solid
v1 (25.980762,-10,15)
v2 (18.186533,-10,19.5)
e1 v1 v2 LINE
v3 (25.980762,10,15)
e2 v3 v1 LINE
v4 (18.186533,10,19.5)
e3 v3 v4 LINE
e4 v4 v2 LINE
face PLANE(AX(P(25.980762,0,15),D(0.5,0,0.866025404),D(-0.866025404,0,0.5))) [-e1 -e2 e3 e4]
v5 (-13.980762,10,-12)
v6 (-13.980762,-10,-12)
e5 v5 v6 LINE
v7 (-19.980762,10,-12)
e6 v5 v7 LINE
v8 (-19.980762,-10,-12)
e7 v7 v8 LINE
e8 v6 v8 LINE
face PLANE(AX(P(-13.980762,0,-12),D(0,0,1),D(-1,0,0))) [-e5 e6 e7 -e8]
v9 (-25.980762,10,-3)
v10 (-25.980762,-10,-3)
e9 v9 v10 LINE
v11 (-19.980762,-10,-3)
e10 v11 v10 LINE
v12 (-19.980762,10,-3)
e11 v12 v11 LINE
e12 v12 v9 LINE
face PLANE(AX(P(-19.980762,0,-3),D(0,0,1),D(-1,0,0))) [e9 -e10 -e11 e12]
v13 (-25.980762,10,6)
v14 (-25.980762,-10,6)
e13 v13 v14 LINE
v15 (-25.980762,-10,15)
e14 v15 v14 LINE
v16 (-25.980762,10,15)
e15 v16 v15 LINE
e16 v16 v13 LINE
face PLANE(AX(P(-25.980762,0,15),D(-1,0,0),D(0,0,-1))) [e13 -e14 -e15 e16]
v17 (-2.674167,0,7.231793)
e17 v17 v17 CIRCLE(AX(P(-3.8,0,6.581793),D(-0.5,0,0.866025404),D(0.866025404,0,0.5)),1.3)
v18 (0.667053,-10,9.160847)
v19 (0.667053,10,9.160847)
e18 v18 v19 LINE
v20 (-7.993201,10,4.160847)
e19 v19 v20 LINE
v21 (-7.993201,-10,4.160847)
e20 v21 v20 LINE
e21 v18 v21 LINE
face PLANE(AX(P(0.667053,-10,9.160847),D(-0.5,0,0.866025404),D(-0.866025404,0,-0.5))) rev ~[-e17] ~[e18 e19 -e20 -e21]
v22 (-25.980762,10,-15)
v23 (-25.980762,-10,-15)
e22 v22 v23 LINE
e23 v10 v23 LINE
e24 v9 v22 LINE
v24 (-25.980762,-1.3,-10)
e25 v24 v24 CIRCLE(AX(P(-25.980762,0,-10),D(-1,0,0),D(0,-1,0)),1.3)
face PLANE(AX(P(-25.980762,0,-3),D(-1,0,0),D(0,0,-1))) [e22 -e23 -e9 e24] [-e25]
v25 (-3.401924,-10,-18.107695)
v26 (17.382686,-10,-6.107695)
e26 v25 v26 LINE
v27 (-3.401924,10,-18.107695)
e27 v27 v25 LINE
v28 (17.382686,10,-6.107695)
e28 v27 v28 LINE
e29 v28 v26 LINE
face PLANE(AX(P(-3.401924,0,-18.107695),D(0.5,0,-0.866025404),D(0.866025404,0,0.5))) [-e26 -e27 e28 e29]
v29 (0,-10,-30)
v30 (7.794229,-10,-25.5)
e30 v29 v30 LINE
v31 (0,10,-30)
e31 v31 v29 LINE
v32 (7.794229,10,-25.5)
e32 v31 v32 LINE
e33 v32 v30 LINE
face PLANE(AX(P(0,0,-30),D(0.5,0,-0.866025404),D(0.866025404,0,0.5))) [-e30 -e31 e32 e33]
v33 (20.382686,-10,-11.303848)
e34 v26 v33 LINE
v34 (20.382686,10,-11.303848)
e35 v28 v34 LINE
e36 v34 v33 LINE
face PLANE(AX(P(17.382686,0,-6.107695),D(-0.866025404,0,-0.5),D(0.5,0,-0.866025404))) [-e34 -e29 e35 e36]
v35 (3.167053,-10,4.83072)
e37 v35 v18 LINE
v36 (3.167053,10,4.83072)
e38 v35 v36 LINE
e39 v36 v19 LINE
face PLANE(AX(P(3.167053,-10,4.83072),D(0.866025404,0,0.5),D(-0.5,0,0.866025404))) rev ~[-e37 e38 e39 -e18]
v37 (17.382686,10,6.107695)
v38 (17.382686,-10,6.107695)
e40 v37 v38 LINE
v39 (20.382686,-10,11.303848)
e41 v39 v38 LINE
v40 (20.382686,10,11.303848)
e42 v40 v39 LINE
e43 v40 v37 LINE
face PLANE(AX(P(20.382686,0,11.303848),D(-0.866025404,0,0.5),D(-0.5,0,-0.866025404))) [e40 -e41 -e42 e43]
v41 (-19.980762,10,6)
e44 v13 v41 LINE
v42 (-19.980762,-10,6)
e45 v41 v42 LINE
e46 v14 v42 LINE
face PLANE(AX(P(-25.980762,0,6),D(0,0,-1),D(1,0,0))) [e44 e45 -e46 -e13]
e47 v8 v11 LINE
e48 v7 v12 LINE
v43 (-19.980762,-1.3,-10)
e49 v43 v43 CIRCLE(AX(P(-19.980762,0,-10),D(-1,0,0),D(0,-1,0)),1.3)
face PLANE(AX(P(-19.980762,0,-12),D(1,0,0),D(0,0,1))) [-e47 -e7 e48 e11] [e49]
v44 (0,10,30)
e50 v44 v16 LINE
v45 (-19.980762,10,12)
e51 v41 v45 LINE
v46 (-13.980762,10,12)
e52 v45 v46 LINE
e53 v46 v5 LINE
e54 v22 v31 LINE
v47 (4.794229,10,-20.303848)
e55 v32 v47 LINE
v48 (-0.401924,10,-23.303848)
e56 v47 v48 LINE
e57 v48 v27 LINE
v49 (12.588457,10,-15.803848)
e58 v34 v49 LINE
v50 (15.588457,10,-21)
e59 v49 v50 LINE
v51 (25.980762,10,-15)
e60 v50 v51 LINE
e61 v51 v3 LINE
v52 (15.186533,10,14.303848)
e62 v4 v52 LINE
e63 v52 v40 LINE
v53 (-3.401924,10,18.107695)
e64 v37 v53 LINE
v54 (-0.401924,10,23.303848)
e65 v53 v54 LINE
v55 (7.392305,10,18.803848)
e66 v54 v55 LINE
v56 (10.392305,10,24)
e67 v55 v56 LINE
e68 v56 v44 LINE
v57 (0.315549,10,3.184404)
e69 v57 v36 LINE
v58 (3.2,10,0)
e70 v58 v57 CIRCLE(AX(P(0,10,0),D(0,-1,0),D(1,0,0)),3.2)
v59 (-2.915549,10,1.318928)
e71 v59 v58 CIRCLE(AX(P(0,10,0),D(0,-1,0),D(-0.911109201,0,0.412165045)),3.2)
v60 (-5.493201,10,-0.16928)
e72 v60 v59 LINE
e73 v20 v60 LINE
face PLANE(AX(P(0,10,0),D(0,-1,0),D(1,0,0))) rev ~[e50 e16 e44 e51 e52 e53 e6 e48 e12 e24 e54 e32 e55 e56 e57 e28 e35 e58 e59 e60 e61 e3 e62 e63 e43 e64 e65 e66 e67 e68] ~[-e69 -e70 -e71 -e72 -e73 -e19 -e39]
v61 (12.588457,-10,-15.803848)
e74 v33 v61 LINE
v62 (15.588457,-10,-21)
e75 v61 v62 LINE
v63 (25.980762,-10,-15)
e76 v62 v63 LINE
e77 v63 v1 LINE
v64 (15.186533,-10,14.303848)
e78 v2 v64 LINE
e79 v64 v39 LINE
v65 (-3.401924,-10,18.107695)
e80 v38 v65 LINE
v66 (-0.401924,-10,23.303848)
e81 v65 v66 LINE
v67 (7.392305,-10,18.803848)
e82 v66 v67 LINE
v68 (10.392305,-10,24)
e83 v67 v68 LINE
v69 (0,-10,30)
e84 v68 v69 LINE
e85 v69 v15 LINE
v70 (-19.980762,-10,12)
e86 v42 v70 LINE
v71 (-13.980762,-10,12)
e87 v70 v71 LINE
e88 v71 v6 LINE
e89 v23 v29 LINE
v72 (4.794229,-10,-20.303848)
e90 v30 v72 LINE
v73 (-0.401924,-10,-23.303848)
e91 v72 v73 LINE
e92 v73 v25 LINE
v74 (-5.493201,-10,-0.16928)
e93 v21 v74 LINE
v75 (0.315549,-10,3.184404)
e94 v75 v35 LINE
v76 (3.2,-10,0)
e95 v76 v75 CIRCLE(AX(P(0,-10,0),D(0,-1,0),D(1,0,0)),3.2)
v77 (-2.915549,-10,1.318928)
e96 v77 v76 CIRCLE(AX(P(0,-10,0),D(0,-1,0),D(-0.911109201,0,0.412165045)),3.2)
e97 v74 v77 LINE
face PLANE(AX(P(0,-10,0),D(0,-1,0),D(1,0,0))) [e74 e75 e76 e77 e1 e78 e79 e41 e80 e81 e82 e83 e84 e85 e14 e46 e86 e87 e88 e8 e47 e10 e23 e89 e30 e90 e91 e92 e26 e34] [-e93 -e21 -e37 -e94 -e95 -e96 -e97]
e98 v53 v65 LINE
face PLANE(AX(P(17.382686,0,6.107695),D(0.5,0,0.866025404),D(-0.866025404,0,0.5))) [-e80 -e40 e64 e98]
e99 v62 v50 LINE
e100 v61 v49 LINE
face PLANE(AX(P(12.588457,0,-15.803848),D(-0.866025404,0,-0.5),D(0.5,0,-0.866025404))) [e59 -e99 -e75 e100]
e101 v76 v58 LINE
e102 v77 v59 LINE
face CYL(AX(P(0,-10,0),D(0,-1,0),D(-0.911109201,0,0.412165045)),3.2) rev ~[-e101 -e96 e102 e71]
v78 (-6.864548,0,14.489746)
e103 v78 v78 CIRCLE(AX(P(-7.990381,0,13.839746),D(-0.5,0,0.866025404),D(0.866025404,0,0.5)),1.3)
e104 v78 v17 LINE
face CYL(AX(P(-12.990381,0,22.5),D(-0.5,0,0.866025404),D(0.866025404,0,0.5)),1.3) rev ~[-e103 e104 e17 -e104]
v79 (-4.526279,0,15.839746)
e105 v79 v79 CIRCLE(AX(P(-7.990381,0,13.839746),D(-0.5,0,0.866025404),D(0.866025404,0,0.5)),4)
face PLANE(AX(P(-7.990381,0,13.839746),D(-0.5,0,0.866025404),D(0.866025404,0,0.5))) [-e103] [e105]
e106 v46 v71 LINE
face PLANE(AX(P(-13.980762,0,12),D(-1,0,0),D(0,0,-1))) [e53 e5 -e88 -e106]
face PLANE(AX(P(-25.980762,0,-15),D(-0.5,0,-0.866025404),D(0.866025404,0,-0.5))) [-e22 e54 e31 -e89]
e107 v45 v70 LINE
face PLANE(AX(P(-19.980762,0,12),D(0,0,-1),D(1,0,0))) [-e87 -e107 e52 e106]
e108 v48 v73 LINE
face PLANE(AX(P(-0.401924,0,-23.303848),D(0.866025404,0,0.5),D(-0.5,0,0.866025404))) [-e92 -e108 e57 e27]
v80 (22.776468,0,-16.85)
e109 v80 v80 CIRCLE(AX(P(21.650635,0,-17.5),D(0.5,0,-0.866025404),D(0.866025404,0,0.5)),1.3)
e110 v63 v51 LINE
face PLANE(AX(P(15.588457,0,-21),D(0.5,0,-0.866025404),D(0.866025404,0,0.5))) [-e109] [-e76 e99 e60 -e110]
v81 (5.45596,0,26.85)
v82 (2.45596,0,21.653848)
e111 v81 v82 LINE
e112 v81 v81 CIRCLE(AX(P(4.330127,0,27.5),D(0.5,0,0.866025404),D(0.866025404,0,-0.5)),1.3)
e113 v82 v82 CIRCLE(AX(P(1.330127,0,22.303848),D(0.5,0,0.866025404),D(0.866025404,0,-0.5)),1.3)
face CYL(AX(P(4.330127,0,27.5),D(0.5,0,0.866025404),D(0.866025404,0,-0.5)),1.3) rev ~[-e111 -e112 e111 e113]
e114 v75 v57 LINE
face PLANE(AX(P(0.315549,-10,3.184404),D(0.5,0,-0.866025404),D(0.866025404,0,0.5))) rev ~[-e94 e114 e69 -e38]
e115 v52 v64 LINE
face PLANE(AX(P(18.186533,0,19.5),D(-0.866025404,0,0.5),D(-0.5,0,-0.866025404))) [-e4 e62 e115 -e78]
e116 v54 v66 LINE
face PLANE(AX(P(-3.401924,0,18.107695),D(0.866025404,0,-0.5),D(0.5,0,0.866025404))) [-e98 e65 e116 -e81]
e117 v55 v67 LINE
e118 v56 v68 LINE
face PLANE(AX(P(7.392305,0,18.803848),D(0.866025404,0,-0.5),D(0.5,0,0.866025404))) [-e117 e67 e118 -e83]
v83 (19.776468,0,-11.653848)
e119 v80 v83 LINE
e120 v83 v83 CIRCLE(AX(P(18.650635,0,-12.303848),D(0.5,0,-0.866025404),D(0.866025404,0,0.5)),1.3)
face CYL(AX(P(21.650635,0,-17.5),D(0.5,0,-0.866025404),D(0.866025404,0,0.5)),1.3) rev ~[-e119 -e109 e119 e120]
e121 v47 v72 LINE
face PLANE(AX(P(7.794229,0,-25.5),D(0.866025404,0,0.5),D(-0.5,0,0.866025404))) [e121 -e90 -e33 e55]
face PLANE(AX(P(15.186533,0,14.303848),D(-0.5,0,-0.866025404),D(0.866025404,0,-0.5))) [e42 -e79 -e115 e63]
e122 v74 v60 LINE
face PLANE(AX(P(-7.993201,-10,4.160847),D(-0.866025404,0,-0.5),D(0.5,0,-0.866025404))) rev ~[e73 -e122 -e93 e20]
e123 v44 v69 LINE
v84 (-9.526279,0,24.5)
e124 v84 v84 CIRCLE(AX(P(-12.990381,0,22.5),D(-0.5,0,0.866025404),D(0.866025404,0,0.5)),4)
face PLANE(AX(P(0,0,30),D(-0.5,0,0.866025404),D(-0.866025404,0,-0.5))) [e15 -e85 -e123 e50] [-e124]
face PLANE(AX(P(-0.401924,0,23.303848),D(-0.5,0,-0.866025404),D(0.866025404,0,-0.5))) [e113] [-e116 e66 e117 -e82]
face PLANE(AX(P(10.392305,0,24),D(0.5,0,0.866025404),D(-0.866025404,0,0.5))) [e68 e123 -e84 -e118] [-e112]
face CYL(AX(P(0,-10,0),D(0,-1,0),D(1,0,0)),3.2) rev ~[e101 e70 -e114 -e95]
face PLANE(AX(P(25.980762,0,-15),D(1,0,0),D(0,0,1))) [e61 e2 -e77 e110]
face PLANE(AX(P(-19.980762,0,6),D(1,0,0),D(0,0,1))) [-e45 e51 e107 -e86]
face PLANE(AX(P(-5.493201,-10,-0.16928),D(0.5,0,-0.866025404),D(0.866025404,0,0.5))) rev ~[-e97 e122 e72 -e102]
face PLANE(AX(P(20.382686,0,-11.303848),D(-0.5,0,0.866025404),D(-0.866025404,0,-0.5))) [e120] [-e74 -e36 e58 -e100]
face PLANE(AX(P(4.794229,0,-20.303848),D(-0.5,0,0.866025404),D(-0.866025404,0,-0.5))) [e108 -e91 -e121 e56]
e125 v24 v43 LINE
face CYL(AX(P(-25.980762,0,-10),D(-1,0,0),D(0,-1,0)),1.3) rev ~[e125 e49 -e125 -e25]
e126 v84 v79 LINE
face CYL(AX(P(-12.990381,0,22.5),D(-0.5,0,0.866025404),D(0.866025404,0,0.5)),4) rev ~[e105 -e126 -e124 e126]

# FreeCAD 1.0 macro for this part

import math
import FreeCAD as App
import Part
import Sketcher

V = App.Vector
Q = App.Units.Quantity

doc = App.newDocument("Part")
body = doc.addObject("PartDesign::Body", "Body")

sketch1 = body.newObject("Sketcher::SketchObject", "Sketch")
sketch1.AttachmentSupport = (doc.getObject("XZ_Plane"), [""])
sketch1.MapMode = "FlatFace"
sketch1.addGeometry([
    Part.LineSegment(V(26, -15, 0), V(26, 15, 0)),
    Part.LineSegment(V(26, 15, 0), V(18, 20, 0)),
    Part.LineSegment(V(18, 20, 0), V(15, 14, 0)),
    Part.LineSegment(V(15, 14, 0), V(20, 11, 0)),
    Part.LineSegment(V(20, 11, 0), V(17, 6, 0)),
    Part.LineSegment(V(17, 6, 0), V(-3, 18, 0)),
    Part.LineSegment(V(-3, 18, 0), V(0, 23, 0)),
    Part.LineSegment(V(0, 23, 0), V(7, 19, 0)),
    Part.LineSegment(V(7, 19, 0), V(10, 24, 0)),
    Part.LineSegment(V(10, 24, 0), V(0, 30, 0)),
    Part.LineSegment(V(0, 30, 0), V(-26, 15, 0)),
    Part.LineSegment(V(-26, 15, 0), V(-26, 6, 0)),
    Part.LineSegment(V(-26, 6, 0), V(-20, 6, 0)),
    Part.LineSegment(V(-20, 6, 0), V(-20, 12, 0)),
    Part.LineSegment(V(-20, 12, 0), V(-14, 12, 0)),
    Part.LineSegment(V(-14, 12, 0), V(-14, -12, 0)),
    Part.LineSegment(V(-14, -12, 0), V(-20, -12, 0)),
    Part.LineSegment(V(-20, -12, 0), V(-20, -3, 0)),
    Part.LineSegment(V(-20, -3, 0), V(-26, -3, 0)),
    Part.LineSegment(V(-26, -3, 0), V(-26, -15, 0)),
    Part.LineSegment(V(-26, -15, 0), V(0, -30, 0)),
    Part.LineSegment(V(0, -30, 0), V(8, -26, 0)),
    Part.LineSegment(V(8, -26, 0), V(5, -20, 0)),
    Part.LineSegment(V(5, -20, 0), V(0, -23, 0)),
    Part.LineSegment(V(0, -23, 0), V(-3, -18, 0)),
    Part.LineSegment(V(-3, -18, 0), V(17, -6, 0)),
    Part.LineSegment(V(17, -6, 0), V(20, -11, 0)),
    Part.LineSegment(V(20, -11, 0), V(13, -16, 0)),
    Part.LineSegment(V(13, -16, 0), V(16, -21, 0)),
    Part.LineSegment(V(16, -21, 0), V(26, -15, 0)),
], False)
sketch1.addConstraint([
    Sketcher.Constraint("Coincident", 0, 2, 1, 1),
    Sketcher.Constraint("Coincident", 1, 2, 2, 1),
    Sketcher.Constraint("Coincident", 2, 2, 3, 1),
    Sketcher.Constraint("Coincident", 3, 2, 4, 1),
    Sketcher.Constraint("Coincident", 4, 2, 5, 1),
    Sketcher.Constraint("Coincident", 5, 2, 6, 1),
    Sketcher.Constraint("Coincident", 6, 2, 7, 1),
    Sketcher.Constraint("Coincident", 7, 2, 8, 1),
    Sketcher.Constraint("Coincident", 8, 2, 9, 1),
    Sketcher.Constraint("Coincident", 9, 2, 10, 1),
    Sketcher.Constraint("Coincident", 10, 2, 11, 1),
    Sketcher.Constraint("Coincident", 11, 2, 12, 1),
    Sketcher.Constraint("Coincident", 12, 2, 13, 1),
    Sketcher.Constraint("Coincident", 13, 2, 14, 1),
    Sketcher.Constraint("Coincident", 14, 2, 15, 1),
    Sketcher.Constraint("Coincident", 15, 2, 16, 1),
    Sketcher.Constraint("Coincident", 16, 2, 17, 1),
    Sketcher.Constraint("Coincident", 17, 2, 18, 1),
    Sketcher.Constraint("Coincident", 18, 2, 19, 1),
    Sketcher.Constraint("Coincident", 19, 2, 20, 1),
    Sketcher.Constraint("Coincident", 20, 2, 21, 1),
    Sketcher.Constraint("Coincident", 21, 2, 22, 1),
    Sketcher.Constraint("Coincident", 22, 2, 23, 1),
    Sketcher.Constraint("Coincident", 23, 2, 24, 1),
    Sketcher.Constraint("Coincident", 24, 2, 25, 1),
    Sketcher.Constraint("Coincident", 25, 2, 26, 1),
    Sketcher.Constraint("Coincident", 26, 2, 27, 1),
    Sketcher.Constraint("Coincident", 27, 2, 28, 1),
    Sketcher.Constraint("Coincident", 28, 2, 29, 1),
    Sketcher.Constraint("Coincident", 29, 2, 0, 1),
    Sketcher.Constraint("Vertical", 0),
    Sketcher.Constraint("Vertical", 11),
    Sketcher.Constraint("Horizontal", 12),
    Sketcher.Constraint("Vertical", 13),
    Sketcher.Constraint("Horizontal", 14),
    Sketcher.Constraint("Vertical", 15),
    Sketcher.Constraint("Horizontal", 16),
    Sketcher.Constraint("Vertical", 17),
    Sketcher.Constraint("Horizontal", 18),
    Sketcher.Constraint("Vertical", 19),
    Sketcher.Constraint("Symmetric", 0, 2, 19, 2, -1, 1),
    Sketcher.Constraint("Symmetric", 9, 2, 20, 2, -1, 1),
    Sketcher.Constraint("Symmetric", 10, 2, 29, 2, -1, 1),
    Sketcher.Constraint("Symmetric", 13, 2, 16, 2, -1),
    Sketcher.Constraint("Symmetric", 6, 2, 23, 2, -1),
    Sketcher.Constraint("Symmetric", 5, 2, 24, 2, -1),
    Sketcher.Constraint("Symmetric", 4, 2, 25, 2, -1),
    Sketcher.Constraint("Symmetric", 3, 2, 26, 2, -1),
    Sketcher.Constraint("PointOnObject", 9, 2, -2),
    Sketcher.Constraint("Perpendicular", 1, 2),
    Sketcher.Constraint("Perpendicular", 2, 3),
    Sketcher.Constraint("Perpendicular", 3, 4),
    Sketcher.Constraint("Perpendicular", 4, 5),
    Sketcher.Constraint("Perpendicular", 5, 6),
    Sketcher.Constraint("Perpendicular", 6, 7),
    Sketcher.Constraint("Perpendicular", 7, 8),
    Sketcher.Constraint("Perpendicular", 8, 9),
    Sketcher.Constraint("Parallel", 9, 20),
    Sketcher.Constraint("Parallel", 10, 21),
    Sketcher.Constraint("Perpendicular", 21, 22),
    Sketcher.Constraint("Perpendicular", 22, 23),
    Sketcher.Constraint("Perpendicular", 23, 24),
    Sketcher.Constraint("Perpendicular", 26, 27),
    Sketcher.Constraint("Perpendicular", 27, 28),
    Sketcher.Constraint("Perpendicular", 28, 29),
    Sketcher.Constraint("Equal", 12, 14),
    Sketcher.Constraint("Equal", 18, 13),
    Sketcher.Constraint("Equal", 11, 17),
    Sketcher.Constraint("Equal", 2, 3),
    Sketcher.Constraint("Equal", 3, 4),
    Sketcher.Constraint("Equal", 4, 6),
    Sketcher.Constraint("Equal", 1, 7),
    Sketcher.Constraint("Equal", 7, 21),
    Sketcher.Constraint("Equal", 22, 23),
    Sketcher.Constraint("Equal", 21, 27),
    Sketcher.Constraint("DistanceX", 12, 1, 12, 2, Q("6 mm")),
    Sketcher.Constraint("DistanceY", 0, 1, 0, 2, Q("30 mm")),
    Sketcher.Constraint("DistanceY", 11, 2, 11, 1, Q("9 mm")),
    Sketcher.Constraint("Angle", 1, Q("150 deg")),
    Sketcher.Constraint("Distance", 1, Q("9 mm")),
    Sketcher.Constraint("Distance", 2, Q("6 mm")),
    Sketcher.Constraint("Distance", 5, Q("24 mm")),
])
pad1 = body.newObject("PartDesign::Pad", "Pad")
pad1.Profile = sketch1
pad1.Length = 20
pad1.Midplane = True

sketch2 = body.newObject("Sketcher::SketchObject", "Sketch001")
sketch2.AttachmentSupport = (doc.getObject("XZ_Plane"), [""])
sketch2.MapMode = "FlatFace"
sketch2.AttachmentOffset = App.Placement(V(0, 0, 10), App.Rotation())
sketch2.addGeometry([
    Part.ArcOfCircle(Part.Circle(V(0, 0, 0), V(0, 0, 1), 3.2), math.radians(156), math.radians(360)),
    Part.ArcOfCircle(Part.Circle(V(0, 0, 0), V(0, 0, 1), 3.2), math.radians(0), math.radians(84)),
    Part.LineSegment(V(0.3, 3.2, 0), V(3.2, 4.8, 0)),
    Part.LineSegment(V(3.2, 4.8, 0), V(0.7, 9.2, 0)),
    Part.LineSegment(V(0.7, 9.2, 0), V(-8, 4.2, 0)),
    Part.LineSegment(V(-8, 4.2, 0), V(-5.5, -0.2, 0)),
    Part.LineSegment(V(-5.5, -0.2, 0), V(-2.9, 1.3, 0)),
], False)
sketch2.addConstraint([
    Sketcher.Constraint("Tangent", 0, 2, 1, 1),
    Sketcher.Constraint("Coincident", 1, 2, 2, 1),
    Sketcher.Constraint("Coincident", 2, 2, 3, 1),
    Sketcher.Constraint("Coincident", 3, 2, 4, 1),
    Sketcher.Constraint("Coincident", 4, 2, 5, 1),
    Sketcher.Constraint("Coincident", 5, 2, 6, 1),
    Sketcher.Constraint("Coincident", 6, 2, 0, 1),
    Sketcher.Constraint("Coincident", 0, 3, -1, 1),
    Sketcher.Constraint("Equal", 0, 1),
    Sketcher.Constraint("PointOnObject", 0, 2, -1),
    Sketcher.Constraint("Perpendicular", 2, 3),
    Sketcher.Constraint("Perpendicular", 3, 4),
    Sketcher.Constraint("Perpendicular", 4, 5),
    Sketcher.Constraint("Perpendicular", 5, 6),
    Sketcher.Constraint("Equal", 3, 5),
    Sketcher.Constraint("Radius", 0, Q("3.2 mm")),
    Sketcher.Constraint("Angle", 2, Q("30 deg")),
    Sketcher.Constraint("Distance", 3, Q("5 mm")),
    Sketcher.Constraint("Distance", 4, Q("10 mm")),
    Sketcher.Constraint("DistanceX", 4, 2, -1, 1, Q("7.993201 mm")),
    Sketcher.Constraint("DistanceX", 6, 2, 1, 2, Q("3.231099 mm")),
])
pocket1 = body.newObject("PartDesign::Pocket", "Pocket")
pocket1.Profile = sketch2
pocket1.Length = 20

sketch3 = body.newObject("Sketcher::SketchObject", "Sketch002")
sketch3.Placement = App.Placement(V(-12.990381, 0, 22.5), App.Rotation(V(0.866025404, 0, 0.5), V(0, 1, 0), V(-0.5, 0, 0.866025404), "ZXY"))
sketch3.addGeometry(Part.Circle(V(0, 0, 0), V(0, 0, 1), 1.3), False)
sketch3.addConstraint([
    Sketcher.Constraint("Coincident", 0, 3, -1, 1),
    Sketcher.Constraint("Diameter", 0, Q("2.6 mm")),
])
pocket2 = body.newObject("PartDesign::Pocket", "Pocket001")
pocket2.Profile = sketch3
pocket2.Length = 25

sketch4 = body.newObject("Sketcher::SketchObject", "Sketch003")
sketch4.Placement = App.Placement(V(-12.990381, 0, 22.5), App.Rotation(V(0.866025404, 0, 0.5), V(0, 1, 0), V(-0.5, 0, 0.866025404), "ZXY"))
sketch4.addGeometry([
    Part.Circle(V(0, 0, 0), V(0, 0, 1), 4),
    Part.Circle(V(0, 0, 0), V(0, 0, 1), 1.3),
], False)
sketch4.addConstraint([
    Sketcher.Constraint("Coincident", 0, 3, -1, 1),
    Sketcher.Constraint("Coincident", 1, 3, -1, 1),
    Sketcher.Constraint("Diameter", 0, Q("8 mm")),
    Sketcher.Constraint("Diameter", 1, Q("2.6 mm")),
])
pocket3 = body.newObject("PartDesign::Pocket", "Pocket002")
pocket3.Profile = sketch4
pocket3.Length = 10

sketch5 = body.newObject("Sketcher::SketchObject", "Sketch004")
sketch5.Placement = App.Placement(V(12.990381, 0, 22.5), App.Rotation(V(0.866025404, 0, -0.5), V(0, 1, 0), V(0.5, 0, 0.866025404), "ZXY"))
sketch5.addGeometry(Part.Circle(V(-10, 0, 0), V(0, 0, 1), 1.3), False)
sketch5.addConstraint([
    Sketcher.Constraint("PointOnObject", 0, 3, -1),
    Sketcher.Constraint("Diameter", 0, Q("2.6 mm")),
    Sketcher.Constraint("DistanceX", 0, 3, -1, 1, Q("10 mm")),
])
pocket4 = body.newObject("PartDesign::Pocket", "Pocket003")
pocket4.Profile = sketch5
pocket4.Length = 8

sketch6 = body.newObject("Sketcher::SketchObject", "Sketch005")
sketch6.Placement = App.Placement(V(12.990381, 0, -22.5), App.Rotation(V(0.866025404, 0, 0.5), V(0, -1, 0), V(0.5, 0, -0.866025404), "ZXY"))
sketch6.addGeometry(Part.Circle(V(10, 0, 0), V(0, 0, 1), 1.3), False)
sketch6.addConstraint([
    Sketcher.Constraint("PointOnObject", 0, 3, -1),
    Sketcher.Constraint("Diameter", 0, Q("2.6 mm")),
    Sketcher.Constraint("DistanceX", -1, 1, 0, 3, Q("10 mm")),
])
pocket5 = body.newObject("PartDesign::Pocket", "Pocket004")
pocket5.Profile = sketch6
pocket5.Length = 8

sketch7 = body.newObject("Sketcher::SketchObject", "Sketch006")
sketch7.AttachmentSupport = (doc.getObject("YZ_Plane"), [""])
sketch7.MapMode = "FlatFace"
sketch7.AttachmentOffset = App.Placement(V(0, 0, -25.980762), App.Rotation())
sketch7.addGeometry(Part.Circle(V(0, -10, 0), V(0, 0, 1), 1.3), False)
sketch7.addConstraint([
    Sketcher.Constraint("PointOnObject", 0, 3, -2),
    Sketcher.Constraint("Diameter", 0, Q("2.6 mm")),
    Sketcher.Constraint("DistanceY", 0, 3, -1, 1, Q("10 mm")),
])
pocket6 = body.newObject("PartDesign::Pocket", "Pocket005")
pocket6.Profile = sketch7
pocket6.Length = 8
pocket6.Reversed = True

doc.recompute()
